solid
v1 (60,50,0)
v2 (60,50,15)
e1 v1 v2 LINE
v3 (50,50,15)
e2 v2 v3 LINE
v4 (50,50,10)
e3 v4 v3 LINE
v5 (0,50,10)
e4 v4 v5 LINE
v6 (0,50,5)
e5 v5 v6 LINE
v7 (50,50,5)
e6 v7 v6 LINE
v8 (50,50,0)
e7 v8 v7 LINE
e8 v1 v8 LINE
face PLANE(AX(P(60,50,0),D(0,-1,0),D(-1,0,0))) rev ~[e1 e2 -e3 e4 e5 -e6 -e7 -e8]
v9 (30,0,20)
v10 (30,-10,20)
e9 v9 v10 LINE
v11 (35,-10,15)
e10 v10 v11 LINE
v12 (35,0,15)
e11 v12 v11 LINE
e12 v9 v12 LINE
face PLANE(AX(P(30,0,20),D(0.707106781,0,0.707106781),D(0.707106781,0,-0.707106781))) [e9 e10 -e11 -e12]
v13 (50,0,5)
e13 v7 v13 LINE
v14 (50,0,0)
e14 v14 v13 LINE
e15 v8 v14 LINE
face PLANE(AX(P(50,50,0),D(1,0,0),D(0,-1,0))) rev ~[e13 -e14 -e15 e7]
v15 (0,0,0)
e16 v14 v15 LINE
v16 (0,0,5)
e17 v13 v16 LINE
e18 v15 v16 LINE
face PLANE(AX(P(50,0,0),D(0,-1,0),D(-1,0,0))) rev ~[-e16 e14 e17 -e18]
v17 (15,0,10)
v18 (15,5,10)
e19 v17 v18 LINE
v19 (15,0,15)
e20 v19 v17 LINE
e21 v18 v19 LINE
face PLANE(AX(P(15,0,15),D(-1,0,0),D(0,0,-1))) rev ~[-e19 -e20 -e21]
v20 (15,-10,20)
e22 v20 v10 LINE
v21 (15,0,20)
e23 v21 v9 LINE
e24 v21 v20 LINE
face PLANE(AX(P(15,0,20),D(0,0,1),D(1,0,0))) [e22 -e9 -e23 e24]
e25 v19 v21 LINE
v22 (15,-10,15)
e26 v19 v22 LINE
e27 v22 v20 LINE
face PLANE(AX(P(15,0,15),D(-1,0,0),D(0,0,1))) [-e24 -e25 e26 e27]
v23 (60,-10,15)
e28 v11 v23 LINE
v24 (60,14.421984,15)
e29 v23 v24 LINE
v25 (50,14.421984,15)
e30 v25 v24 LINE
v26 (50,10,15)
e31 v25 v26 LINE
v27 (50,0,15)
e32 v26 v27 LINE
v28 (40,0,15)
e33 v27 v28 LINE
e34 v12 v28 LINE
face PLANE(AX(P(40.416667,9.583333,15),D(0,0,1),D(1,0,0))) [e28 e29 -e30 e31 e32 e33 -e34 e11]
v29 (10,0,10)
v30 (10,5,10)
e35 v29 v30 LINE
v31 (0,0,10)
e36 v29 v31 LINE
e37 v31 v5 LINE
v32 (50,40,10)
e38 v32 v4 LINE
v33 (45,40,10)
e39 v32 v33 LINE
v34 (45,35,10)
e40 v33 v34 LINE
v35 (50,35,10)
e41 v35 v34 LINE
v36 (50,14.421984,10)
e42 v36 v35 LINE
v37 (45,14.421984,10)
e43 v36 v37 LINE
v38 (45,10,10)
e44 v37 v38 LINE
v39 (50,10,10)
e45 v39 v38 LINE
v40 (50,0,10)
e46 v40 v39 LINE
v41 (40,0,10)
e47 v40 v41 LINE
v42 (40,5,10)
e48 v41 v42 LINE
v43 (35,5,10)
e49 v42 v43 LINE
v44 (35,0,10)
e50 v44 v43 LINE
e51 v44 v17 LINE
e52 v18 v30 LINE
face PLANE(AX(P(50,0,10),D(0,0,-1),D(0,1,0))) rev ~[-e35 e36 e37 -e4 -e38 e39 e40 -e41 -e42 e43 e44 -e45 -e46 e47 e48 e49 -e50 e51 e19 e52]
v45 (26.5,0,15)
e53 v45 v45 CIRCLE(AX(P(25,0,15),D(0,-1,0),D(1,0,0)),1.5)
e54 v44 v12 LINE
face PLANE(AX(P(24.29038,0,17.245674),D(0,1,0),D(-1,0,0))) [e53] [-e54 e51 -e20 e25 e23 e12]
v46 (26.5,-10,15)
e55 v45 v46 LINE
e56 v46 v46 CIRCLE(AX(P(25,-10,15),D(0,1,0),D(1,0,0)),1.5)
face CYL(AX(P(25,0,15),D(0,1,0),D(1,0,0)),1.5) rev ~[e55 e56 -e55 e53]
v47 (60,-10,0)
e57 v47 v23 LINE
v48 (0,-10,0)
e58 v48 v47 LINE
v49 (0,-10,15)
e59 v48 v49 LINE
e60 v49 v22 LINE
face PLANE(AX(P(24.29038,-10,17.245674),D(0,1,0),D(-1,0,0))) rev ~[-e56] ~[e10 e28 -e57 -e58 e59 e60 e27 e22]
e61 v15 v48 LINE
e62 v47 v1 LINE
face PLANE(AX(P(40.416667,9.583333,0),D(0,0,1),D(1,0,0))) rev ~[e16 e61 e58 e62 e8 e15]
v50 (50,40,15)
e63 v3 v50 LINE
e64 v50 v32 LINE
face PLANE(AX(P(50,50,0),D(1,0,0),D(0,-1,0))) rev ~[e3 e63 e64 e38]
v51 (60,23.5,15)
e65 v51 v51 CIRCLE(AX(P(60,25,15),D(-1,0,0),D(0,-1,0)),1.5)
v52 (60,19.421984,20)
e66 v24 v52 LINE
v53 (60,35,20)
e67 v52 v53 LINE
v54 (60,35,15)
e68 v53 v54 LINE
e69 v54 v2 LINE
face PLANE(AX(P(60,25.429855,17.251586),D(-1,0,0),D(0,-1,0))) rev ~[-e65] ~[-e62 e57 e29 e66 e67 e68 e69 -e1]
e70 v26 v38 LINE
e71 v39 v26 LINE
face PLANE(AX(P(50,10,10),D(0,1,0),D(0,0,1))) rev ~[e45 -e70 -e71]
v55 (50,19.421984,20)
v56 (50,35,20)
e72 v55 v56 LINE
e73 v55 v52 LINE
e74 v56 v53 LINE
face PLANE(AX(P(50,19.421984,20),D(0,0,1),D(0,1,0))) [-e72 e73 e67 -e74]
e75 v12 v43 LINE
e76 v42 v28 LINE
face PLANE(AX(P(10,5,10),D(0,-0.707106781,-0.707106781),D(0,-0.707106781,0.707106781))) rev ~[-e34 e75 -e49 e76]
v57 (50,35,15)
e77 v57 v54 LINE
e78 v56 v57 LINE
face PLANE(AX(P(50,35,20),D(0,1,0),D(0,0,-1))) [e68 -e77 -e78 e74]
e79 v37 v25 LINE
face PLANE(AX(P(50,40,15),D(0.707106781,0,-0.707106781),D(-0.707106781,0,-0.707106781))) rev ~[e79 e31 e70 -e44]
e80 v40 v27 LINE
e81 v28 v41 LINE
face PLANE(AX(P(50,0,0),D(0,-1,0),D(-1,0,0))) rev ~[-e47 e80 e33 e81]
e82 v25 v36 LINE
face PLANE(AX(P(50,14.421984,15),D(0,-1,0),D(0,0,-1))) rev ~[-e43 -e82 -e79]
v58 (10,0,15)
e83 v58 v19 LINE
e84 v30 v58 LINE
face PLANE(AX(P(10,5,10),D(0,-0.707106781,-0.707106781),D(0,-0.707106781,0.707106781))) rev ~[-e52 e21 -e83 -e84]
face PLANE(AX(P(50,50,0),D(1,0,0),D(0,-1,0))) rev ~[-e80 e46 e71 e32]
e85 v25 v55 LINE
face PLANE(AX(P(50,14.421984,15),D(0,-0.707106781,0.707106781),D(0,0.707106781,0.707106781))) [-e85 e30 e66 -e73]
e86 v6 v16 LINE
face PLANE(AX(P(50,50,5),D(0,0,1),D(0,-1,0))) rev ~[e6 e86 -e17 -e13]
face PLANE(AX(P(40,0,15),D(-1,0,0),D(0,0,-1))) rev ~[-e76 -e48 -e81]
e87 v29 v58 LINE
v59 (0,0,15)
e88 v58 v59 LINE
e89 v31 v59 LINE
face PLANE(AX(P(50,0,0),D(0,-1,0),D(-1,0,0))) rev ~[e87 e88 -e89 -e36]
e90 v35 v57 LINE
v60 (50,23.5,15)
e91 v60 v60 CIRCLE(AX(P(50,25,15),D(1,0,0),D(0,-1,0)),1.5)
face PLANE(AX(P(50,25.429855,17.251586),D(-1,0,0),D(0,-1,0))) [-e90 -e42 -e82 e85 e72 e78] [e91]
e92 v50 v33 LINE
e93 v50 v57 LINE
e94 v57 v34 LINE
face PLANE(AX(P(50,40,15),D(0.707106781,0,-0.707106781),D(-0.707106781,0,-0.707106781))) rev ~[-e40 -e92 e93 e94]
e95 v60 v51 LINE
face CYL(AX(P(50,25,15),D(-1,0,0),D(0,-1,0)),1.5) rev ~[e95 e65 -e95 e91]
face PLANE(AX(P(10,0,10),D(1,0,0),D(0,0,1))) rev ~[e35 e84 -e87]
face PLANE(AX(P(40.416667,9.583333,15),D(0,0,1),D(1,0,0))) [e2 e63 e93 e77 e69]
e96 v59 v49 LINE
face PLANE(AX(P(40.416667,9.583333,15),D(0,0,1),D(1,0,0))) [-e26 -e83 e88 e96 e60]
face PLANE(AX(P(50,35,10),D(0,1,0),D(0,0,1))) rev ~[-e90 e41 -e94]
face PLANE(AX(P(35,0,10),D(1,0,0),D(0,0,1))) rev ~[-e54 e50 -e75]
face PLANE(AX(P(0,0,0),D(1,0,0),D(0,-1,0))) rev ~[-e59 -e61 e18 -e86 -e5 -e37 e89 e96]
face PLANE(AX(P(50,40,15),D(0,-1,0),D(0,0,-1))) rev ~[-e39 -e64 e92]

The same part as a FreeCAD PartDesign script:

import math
import FreeCAD as App
import Part
import Sketcher
from FreeCAD import Vector
Q = App.Units.Quantity


def add_polygon(sketch, points):
    """Adds a closed chain of lines whose ends are joined by coincident constraints."""
    first, n = sketch.GeometryCount, len(points)
    for a, b in zip(points, points[1:] + points[:1]):
        sketch.addGeometry(Part.LineSegment(App.Vector(*a, 0), App.Vector(*b, 0)), False)
    for i in range(n):
        sketch.addConstraint(Sketcher.Constraint("Coincident", first + i, 2, first + (i + 1) % n, 1))

doc = App.newDocument("Part")
body = doc.addObject("PartDesign::Body", "Body")

# Sketch on XY plane
sketch1 = body.newObject("Sketcher::SketchObject", "Sketch")
sketch1.AttachmentSupport = (doc.getObject("XY_Plane"), [""])
sketch1.MapMode = "FlatFace"
add_polygon(sketch1, [(50, 0), (0, 0), (0, -10), (60, -10), (60, 50), (50, 50)])  # lines 0-5
sketch1.addConstraint([
    Sketcher.Constraint("Horizontal", 0),
    Sketcher.Constraint("Vertical", 1),
    Sketcher.Constraint("Horizontal", 2),
    Sketcher.Constraint("Vertical", 3),
    Sketcher.Constraint("Horizontal", 4),
    Sketcher.Constraint("Vertical", 5),
    Sketcher.Constraint("Coincident", 0, 2, -1, 1),
    Sketcher.Constraint("Equal", 4, 1),
    Sketcher.Constraint("Equal", 2, 3),
    Sketcher.Constraint("DistanceX", 0, 2, 0, 1, 50.0),
    Sketcher.Constraint("DistanceX", 2, 1, 2, 2, 60.0),
])
pad1 = body.newObject("PartDesign::Pad", "Pad")
pad1.Profile = sketch1
pad1.Length = 15

# Sketch on YZ plane
sketch2 = body.newObject("Sketcher::SketchObject", "Sketch001")
sketch2.AttachmentSupport = (doc.getObject("YZ_Plane"), [""])
sketch2.MapMode = "FlatFace"
sketch2.AttachmentOffset = App.Placement(Vector(0, 0, 50), App.Rotation())
add_polygon(sketch2, [(50, 10), (50, 5), (0, 5), (0, 10)])  # lines 0-3
sketch2.addConstraint([
    Sketcher.Constraint("Vertical", 0),
    Sketcher.Constraint("Horizontal", 1),
    Sketcher.Constraint("Vertical", 2),
    Sketcher.Constraint("Horizontal", 3),
    Sketcher.Constraint("PointOnObject", 1, 2, -2),
    Sketcher.Constraint("DistanceX", 1, 2, 1, 1, 50.0),
    Sketcher.Constraint("DistanceY", 0, 2, 0, 1, 5.0),
    Sketcher.Constraint("DistanceY", -1, 1, 0, 2, 5.0),
])
pad2 = body.newObject("PartDesign::Pad", "Pad001")
pad2.Profile = sketch2
pad2.Length = 50
pad2.Reversed = True

# Sketch on YZ plane
sketch3 = body.newObject("Sketcher::SketchObject", "Sketch002")
sketch3.AttachmentSupport = (doc.getObject("YZ_Plane"), [""])
sketch3.MapMode = "FlatFace"
sketch3.AttachmentOffset = App.Placement(Vector(0, 0, 50), App.Rotation())
add_polygon(sketch3, [(40, 15), (40, 10), (35, 10), (35, 15)])  # lines 0-3
add_polygon(sketch3, [(14.421984, 10), (10, 10), (10, 15), (14.421984, 15)])  # lines 4-7
sketch3.addConstraint([
    Sketcher.Constraint("Vertical", 0),
    Sketcher.Constraint("Horizontal", 1),
    Sketcher.Constraint("Vertical", 2),
    Sketcher.Constraint("Horizontal", 3),
    Sketcher.Constraint("Horizontal", 4),
    Sketcher.Constraint("Vertical", 5),
    Sketcher.Constraint("Horizontal", 6),
    Sketcher.Constraint("Vertical", 7),
    Sketcher.Constraint("Horizontal", 1, 2, 4, 2),
    Sketcher.Constraint("Horizontal", 3, 2, 5, 2),
    Sketcher.Constraint("Equal", 3, 0),
    Sketcher.Constraint("DistanceX", 1, 2, 1, 1, 5.0),
    Sketcher.Constraint("DistanceX", -1, 1, 0, 2, 40.0),
    Sketcher.Constraint("DistanceY", -1, 1, 0, 2, 10.0),
    Sketcher.Constraint("DistanceX", -1, 1, 4, 2, 10.0),
    Sketcher.Constraint("DistanceX", 4, 2, 4, 1, 4.421984),
])
pad3 = body.newObject("PartDesign::Pad", "Pad002")
pad3.Profile = sketch3
pad3.Length = 5
pad3.Reversed = True

# Sketch on XZ plane
sketch4 = body.newObject("Sketcher::SketchObject", "Sketch003")
sketch4.AttachmentSupport = (doc.getObject("XZ_Plane"), [""])
sketch4.MapMode = "FlatFace"
sketch4.AttachmentOffset = App.Placement(Vector(0, 0, -40), App.Rotation())
add_polygon(sketch4, [(45, 15), (50, 15), (45, 10)])  # lines 0-2
sketch4.addConstraint([
    Sketcher.Constraint("Horizontal", 0),
    Sketcher.Constraint("Vertical", 2),
    Sketcher.Constraint("Equal", 0, 2),
    Sketcher.Constraint("DistanceX", 0, 1, 0, 2, 5.0),
    Sketcher.Constraint("DistanceX", -1, 1, 0, 2, 50.0),
    Sketcher.Constraint("DistanceY", -1, 1, 0, 2, 15.0),
])
pocket1 = body.newObject("PartDesign::Pocket", "Pocket")
pocket1.Profile = sketch4
pocket1.Length = 34.1
pocket1.Reversed = True

# Sketch on XZ plane
sketch5 = body.newObject("Sketcher::SketchObject", "Sketch004")
sketch5.AttachmentSupport = (doc.getObject("XZ_Plane"), [""])
sketch5.MapMode = "FlatFace"
add_polygon(sketch5, [(40, 15), (40, 10), (35, 10), (35, 15)])  # lines 0-3
add_polygon(sketch5, [(15, 15), (15, 10), (10, 10), (10, 15)])  # lines 4-7
sketch5.addConstraint([
    Sketcher.Constraint("Vertical", 0),
    Sketcher.Constraint("Horizontal", 1),
    Sketcher.Constraint("Vertical", 2),
    Sketcher.Constraint("Horizontal", 3),
    Sketcher.Constraint("Vertical", 4),
    Sketcher.Constraint("Horizontal", 5),
    Sketcher.Constraint("Vertical", 6),
    Sketcher.Constraint("Horizontal", 7),
    Sketcher.Constraint("Horizontal", 1, 2, 4, 2),
    Sketcher.Constraint("Horizontal", 3, 2, 6, 2),
    Sketcher.Constraint("Equal", 3, 5),
    Sketcher.Constraint("Equal", 7, 0),
    Sketcher.Constraint("DistanceX", 1, 2, 1, 1, 5.0),
    Sketcher.Constraint("DistanceX", -1, 1, 0, 2, 40.0),
    Sketcher.Constraint("DistanceY", -1, 1, 0, 2, 10.0),
    Sketcher.Constraint("DistanceX", -1, 1, 4, 2, 15.0),
])
pad4 = body.newObject("PartDesign::Pad", "Pad003")
pad4.Profile = sketch5
pad4.Length = 5
pad4.Reversed = True

# Sketch on YZ plane
sketch6 = body.newObject("Sketcher::SketchObject", "Sketch005")
sketch6.AttachmentSupport = (doc.getObject("YZ_Plane"), [""])
sketch6.MapMode = "FlatFace"
sketch6.AttachmentOffset = App.Placement(Vector(0, 0, 10), App.Rotation())
add_polygon(sketch6, [(5, 15), (5, 10), (0, 15)])  # lines 0-2
sketch6.addConstraint([
    Sketcher.Constraint("Vertical", 0),
    Sketcher.Constraint("Horizontal", 2),
    Sketcher.Constraint("PointOnObject", 1, 2, -2),
    Sketcher.Constraint("Equal", 2, 0),
    Sketcher.Constraint("DistanceX", 2, 1, 2, 2, 5.0),
    Sketcher.Constraint("DistanceY", -1, 1, 0, 2, 10.0),
])
pocket2 = body.newObject("PartDesign::Pocket", "Pocket001")
pocket2.Profile = sketch6
pocket2.Length = 37.3
pocket2.Reversed = True

# Sketch on YZ plane
sketch7 = body.newObject("Sketcher::SketchObject", "Sketch006")
sketch7.AttachmentSupport = (doc.getObject("YZ_Plane"), [""])
sketch7.MapMode = "FlatFace"
sketch7.AttachmentOffset = App.Placement(Vector(0, 0, 50), App.Rotation())
sketch7.addGeometry([
    Part.LineSegment(Vector(35, 20, 0), Vector(35, 15, 0)),  # 0
    Part.LineSegment(Vector(35, 15, 0), Vector(26.5, 15, 0)),  # 1
    Part.ArcOfCircle(Part.Circle(Vector(25, 15, 0), Vector(0, 0, 1), 1.5), math.radians(0), math.radians(180)),  # 2
    Part.LineSegment(Vector(23.5, 15, 0), Vector(14.421984, 15, 0)),  # 3
    Part.LineSegment(Vector(14.421984, 15, 0), Vector(19.421984, 20, 0)),  # 4
    Part.LineSegment(Vector(19.421984, 20, 0), Vector(35, 20, 0)),  # 5
], False)
sketch7.addConstraint([
    Sketcher.Constraint("Coincident", 0, 2, 1, 1),
    Sketcher.Constraint("Coincident", 1, 2, 2, 1),
    Sketcher.Constraint("Coincident", 2, 2, 3, 1),
    Sketcher.Constraint("Coincident", 3, 2, 4, 1),
    Sketcher.Constraint("Coincident", 4, 2, 5, 1),
    Sketcher.Constraint("Coincident", 5, 2, 0, 1),
    Sketcher.Constraint("Vertical", 0),
    Sketcher.Constraint("Horizontal", 1),
    Sketcher.Constraint("Horizontal", 3),
    Sketcher.Constraint("Horizontal", 5),
    Sketcher.Constraint("Horizontal", 2, 3, 0, 2),
    Sketcher.Constraint("Horizontal", 1, 2, 2, 2),
    Sketcher.Constraint("Radius", 2, 1.5),
    Sketcher.Constraint("DistanceY", 0, 2, 0, 1, 5.0),
    Sketcher.Constraint("Angle", 4, Q("45 deg")),
    Sketcher.Constraint("DistanceX", 1, 2, 1, 1, 8.5),
    Sketcher.Constraint("DistanceX", -1, 1, 2, 3, 25.0),
    Sketcher.Constraint("DistanceY", -1, 1, 2, 3, 15.0),
    Sketcher.Constraint("DistanceX", 3, 2, 3, 1, 9.078016),
])
pad5 = body.newObject("PartDesign::Pad", "Pad004")
pad5.Profile = sketch7
pad5.Length = 10

# Sketch on XZ plane
sketch8 = body.newObject("Sketcher::SketchObject", "Sketch007")
sketch8.AttachmentSupport = (doc.getObject("XZ_Plane"), [""])
sketch8.MapMode = "FlatFace"
sketch8.addGeometry([
    Part.LineSegment(Vector(30, 20, 0), Vector(35, 15, 0)),  # 0
    Part.LineSegment(Vector(35, 15, 0), Vector(26.5, 15, 0)),  # 1
    Part.ArcOfCircle(Part.Circle(Vector(25, 15, 0), Vector(0, 0, 1), 1.5), math.radians(0), math.radians(180)),  # 2
    Part.LineSegment(Vector(23.5, 15, 0), Vector(15, 15, 0)),  # 3
    Part.LineSegment(Vector(15, 15, 0), Vector(15, 20, 0)),  # 4
    Part.LineSegment(Vector(15, 20, 0), Vector(30, 20, 0)),  # 5
], False)
sketch8.addConstraint([
    Sketcher.Constraint("Coincident", 0, 2, 1, 1),
    Sketcher.Constraint("Coincident", 1, 2, 2, 1),
    Sketcher.Constraint("Coincident", 2, 2, 3, 1),
    Sketcher.Constraint("Coincident", 3, 2, 4, 1),
    Sketcher.Constraint("Coincident", 4, 2, 5, 1),
    Sketcher.Constraint("Coincident", 5, 2, 0, 1),
    Sketcher.Constraint("Horizontal", 1),
    Sketcher.Constraint("Horizontal", 3),
    Sketcher.Constraint("Vertical", 4),
    Sketcher.Constraint("Horizontal", 5),
    Sketcher.Constraint("Horizontal", 2, 3, 0, 2),
    Sketcher.Constraint("Horizontal", 1, 2, 2, 2),
    Sketcher.Constraint("Equal", 1, 3),
    Sketcher.Constraint("Radius", 2, 1.5),
    Sketcher.Constraint("DistanceX", 5, 1, 5, 2, 15.0),
    Sketcher.Constraint("DistanceY", 4, 1, 4, 2, 5.0),
    Sketcher.Constraint("Angle", 0, Q("-45 deg")),
    Sketcher.Constraint("DistanceX", -1, 1, 2, 3, 25.0),
    Sketcher.Constraint("DistanceY", -1, 1, 2, 3, 15.0),
])
pad6 = body.newObject("PartDesign::Pad", "Pad005")
pad6.Profile = sketch8
pad6.Length = 10

# Sketch on YZ plane
sketch9 = body.newObject("Sketcher::SketchObject", "Sketch008")
sketch9.AttachmentSupport = (doc.getObject("YZ_Plane"), [""])
sketch9.MapMode = "FlatFace"
sketch9.AttachmentOffset = App.Placement(Vector(0, 0, 50), App.Rotation())
sketch9.addGeometry(Part.Circle(Vector(25, 15, 0), Vector(0, 0, 1), 1.5), False)
sketch9.addConstraint([
    Sketcher.Constraint("Diameter", 0, 3.0),
    Sketcher.Constraint("DistanceX", -1, 1, 0, 3, 25.0),
    Sketcher.Constraint("DistanceY", -1, 1, 0, 3, 15.0),
])
pocket3 = body.newObject("PartDesign::Pocket", "Pocket002")
pocket3.Profile = sketch9
pocket3.Length = 25
pocket3.Reversed = True

# Sketch on XZ plane
sketch10 = body.newObject("Sketcher::SketchObject", "Sketch009")
sketch10.AttachmentSupport = (doc.getObject("XZ_Plane"), [""])
sketch10.MapMode = "FlatFace"
sketch10.addGeometry(Part.Circle(Vector(25, 15, 0), Vector(0, 0, 1), 1.5), False)
sketch10.addConstraint([
    Sketcher.Constraint("Diameter", 0, 3.0),
    Sketcher.Constraint("DistanceX", -1, 1, 0, 3, 25.0),
    Sketcher.Constraint("DistanceY", -1, 1, 0, 3, 15.0),
])
pocket4 = body.newObject("PartDesign::Pocket", "Pocket003")
pocket4.Profile = sketch10
pocket4.Length = 25
pocket4.Reversed = True

doc.recompute()
